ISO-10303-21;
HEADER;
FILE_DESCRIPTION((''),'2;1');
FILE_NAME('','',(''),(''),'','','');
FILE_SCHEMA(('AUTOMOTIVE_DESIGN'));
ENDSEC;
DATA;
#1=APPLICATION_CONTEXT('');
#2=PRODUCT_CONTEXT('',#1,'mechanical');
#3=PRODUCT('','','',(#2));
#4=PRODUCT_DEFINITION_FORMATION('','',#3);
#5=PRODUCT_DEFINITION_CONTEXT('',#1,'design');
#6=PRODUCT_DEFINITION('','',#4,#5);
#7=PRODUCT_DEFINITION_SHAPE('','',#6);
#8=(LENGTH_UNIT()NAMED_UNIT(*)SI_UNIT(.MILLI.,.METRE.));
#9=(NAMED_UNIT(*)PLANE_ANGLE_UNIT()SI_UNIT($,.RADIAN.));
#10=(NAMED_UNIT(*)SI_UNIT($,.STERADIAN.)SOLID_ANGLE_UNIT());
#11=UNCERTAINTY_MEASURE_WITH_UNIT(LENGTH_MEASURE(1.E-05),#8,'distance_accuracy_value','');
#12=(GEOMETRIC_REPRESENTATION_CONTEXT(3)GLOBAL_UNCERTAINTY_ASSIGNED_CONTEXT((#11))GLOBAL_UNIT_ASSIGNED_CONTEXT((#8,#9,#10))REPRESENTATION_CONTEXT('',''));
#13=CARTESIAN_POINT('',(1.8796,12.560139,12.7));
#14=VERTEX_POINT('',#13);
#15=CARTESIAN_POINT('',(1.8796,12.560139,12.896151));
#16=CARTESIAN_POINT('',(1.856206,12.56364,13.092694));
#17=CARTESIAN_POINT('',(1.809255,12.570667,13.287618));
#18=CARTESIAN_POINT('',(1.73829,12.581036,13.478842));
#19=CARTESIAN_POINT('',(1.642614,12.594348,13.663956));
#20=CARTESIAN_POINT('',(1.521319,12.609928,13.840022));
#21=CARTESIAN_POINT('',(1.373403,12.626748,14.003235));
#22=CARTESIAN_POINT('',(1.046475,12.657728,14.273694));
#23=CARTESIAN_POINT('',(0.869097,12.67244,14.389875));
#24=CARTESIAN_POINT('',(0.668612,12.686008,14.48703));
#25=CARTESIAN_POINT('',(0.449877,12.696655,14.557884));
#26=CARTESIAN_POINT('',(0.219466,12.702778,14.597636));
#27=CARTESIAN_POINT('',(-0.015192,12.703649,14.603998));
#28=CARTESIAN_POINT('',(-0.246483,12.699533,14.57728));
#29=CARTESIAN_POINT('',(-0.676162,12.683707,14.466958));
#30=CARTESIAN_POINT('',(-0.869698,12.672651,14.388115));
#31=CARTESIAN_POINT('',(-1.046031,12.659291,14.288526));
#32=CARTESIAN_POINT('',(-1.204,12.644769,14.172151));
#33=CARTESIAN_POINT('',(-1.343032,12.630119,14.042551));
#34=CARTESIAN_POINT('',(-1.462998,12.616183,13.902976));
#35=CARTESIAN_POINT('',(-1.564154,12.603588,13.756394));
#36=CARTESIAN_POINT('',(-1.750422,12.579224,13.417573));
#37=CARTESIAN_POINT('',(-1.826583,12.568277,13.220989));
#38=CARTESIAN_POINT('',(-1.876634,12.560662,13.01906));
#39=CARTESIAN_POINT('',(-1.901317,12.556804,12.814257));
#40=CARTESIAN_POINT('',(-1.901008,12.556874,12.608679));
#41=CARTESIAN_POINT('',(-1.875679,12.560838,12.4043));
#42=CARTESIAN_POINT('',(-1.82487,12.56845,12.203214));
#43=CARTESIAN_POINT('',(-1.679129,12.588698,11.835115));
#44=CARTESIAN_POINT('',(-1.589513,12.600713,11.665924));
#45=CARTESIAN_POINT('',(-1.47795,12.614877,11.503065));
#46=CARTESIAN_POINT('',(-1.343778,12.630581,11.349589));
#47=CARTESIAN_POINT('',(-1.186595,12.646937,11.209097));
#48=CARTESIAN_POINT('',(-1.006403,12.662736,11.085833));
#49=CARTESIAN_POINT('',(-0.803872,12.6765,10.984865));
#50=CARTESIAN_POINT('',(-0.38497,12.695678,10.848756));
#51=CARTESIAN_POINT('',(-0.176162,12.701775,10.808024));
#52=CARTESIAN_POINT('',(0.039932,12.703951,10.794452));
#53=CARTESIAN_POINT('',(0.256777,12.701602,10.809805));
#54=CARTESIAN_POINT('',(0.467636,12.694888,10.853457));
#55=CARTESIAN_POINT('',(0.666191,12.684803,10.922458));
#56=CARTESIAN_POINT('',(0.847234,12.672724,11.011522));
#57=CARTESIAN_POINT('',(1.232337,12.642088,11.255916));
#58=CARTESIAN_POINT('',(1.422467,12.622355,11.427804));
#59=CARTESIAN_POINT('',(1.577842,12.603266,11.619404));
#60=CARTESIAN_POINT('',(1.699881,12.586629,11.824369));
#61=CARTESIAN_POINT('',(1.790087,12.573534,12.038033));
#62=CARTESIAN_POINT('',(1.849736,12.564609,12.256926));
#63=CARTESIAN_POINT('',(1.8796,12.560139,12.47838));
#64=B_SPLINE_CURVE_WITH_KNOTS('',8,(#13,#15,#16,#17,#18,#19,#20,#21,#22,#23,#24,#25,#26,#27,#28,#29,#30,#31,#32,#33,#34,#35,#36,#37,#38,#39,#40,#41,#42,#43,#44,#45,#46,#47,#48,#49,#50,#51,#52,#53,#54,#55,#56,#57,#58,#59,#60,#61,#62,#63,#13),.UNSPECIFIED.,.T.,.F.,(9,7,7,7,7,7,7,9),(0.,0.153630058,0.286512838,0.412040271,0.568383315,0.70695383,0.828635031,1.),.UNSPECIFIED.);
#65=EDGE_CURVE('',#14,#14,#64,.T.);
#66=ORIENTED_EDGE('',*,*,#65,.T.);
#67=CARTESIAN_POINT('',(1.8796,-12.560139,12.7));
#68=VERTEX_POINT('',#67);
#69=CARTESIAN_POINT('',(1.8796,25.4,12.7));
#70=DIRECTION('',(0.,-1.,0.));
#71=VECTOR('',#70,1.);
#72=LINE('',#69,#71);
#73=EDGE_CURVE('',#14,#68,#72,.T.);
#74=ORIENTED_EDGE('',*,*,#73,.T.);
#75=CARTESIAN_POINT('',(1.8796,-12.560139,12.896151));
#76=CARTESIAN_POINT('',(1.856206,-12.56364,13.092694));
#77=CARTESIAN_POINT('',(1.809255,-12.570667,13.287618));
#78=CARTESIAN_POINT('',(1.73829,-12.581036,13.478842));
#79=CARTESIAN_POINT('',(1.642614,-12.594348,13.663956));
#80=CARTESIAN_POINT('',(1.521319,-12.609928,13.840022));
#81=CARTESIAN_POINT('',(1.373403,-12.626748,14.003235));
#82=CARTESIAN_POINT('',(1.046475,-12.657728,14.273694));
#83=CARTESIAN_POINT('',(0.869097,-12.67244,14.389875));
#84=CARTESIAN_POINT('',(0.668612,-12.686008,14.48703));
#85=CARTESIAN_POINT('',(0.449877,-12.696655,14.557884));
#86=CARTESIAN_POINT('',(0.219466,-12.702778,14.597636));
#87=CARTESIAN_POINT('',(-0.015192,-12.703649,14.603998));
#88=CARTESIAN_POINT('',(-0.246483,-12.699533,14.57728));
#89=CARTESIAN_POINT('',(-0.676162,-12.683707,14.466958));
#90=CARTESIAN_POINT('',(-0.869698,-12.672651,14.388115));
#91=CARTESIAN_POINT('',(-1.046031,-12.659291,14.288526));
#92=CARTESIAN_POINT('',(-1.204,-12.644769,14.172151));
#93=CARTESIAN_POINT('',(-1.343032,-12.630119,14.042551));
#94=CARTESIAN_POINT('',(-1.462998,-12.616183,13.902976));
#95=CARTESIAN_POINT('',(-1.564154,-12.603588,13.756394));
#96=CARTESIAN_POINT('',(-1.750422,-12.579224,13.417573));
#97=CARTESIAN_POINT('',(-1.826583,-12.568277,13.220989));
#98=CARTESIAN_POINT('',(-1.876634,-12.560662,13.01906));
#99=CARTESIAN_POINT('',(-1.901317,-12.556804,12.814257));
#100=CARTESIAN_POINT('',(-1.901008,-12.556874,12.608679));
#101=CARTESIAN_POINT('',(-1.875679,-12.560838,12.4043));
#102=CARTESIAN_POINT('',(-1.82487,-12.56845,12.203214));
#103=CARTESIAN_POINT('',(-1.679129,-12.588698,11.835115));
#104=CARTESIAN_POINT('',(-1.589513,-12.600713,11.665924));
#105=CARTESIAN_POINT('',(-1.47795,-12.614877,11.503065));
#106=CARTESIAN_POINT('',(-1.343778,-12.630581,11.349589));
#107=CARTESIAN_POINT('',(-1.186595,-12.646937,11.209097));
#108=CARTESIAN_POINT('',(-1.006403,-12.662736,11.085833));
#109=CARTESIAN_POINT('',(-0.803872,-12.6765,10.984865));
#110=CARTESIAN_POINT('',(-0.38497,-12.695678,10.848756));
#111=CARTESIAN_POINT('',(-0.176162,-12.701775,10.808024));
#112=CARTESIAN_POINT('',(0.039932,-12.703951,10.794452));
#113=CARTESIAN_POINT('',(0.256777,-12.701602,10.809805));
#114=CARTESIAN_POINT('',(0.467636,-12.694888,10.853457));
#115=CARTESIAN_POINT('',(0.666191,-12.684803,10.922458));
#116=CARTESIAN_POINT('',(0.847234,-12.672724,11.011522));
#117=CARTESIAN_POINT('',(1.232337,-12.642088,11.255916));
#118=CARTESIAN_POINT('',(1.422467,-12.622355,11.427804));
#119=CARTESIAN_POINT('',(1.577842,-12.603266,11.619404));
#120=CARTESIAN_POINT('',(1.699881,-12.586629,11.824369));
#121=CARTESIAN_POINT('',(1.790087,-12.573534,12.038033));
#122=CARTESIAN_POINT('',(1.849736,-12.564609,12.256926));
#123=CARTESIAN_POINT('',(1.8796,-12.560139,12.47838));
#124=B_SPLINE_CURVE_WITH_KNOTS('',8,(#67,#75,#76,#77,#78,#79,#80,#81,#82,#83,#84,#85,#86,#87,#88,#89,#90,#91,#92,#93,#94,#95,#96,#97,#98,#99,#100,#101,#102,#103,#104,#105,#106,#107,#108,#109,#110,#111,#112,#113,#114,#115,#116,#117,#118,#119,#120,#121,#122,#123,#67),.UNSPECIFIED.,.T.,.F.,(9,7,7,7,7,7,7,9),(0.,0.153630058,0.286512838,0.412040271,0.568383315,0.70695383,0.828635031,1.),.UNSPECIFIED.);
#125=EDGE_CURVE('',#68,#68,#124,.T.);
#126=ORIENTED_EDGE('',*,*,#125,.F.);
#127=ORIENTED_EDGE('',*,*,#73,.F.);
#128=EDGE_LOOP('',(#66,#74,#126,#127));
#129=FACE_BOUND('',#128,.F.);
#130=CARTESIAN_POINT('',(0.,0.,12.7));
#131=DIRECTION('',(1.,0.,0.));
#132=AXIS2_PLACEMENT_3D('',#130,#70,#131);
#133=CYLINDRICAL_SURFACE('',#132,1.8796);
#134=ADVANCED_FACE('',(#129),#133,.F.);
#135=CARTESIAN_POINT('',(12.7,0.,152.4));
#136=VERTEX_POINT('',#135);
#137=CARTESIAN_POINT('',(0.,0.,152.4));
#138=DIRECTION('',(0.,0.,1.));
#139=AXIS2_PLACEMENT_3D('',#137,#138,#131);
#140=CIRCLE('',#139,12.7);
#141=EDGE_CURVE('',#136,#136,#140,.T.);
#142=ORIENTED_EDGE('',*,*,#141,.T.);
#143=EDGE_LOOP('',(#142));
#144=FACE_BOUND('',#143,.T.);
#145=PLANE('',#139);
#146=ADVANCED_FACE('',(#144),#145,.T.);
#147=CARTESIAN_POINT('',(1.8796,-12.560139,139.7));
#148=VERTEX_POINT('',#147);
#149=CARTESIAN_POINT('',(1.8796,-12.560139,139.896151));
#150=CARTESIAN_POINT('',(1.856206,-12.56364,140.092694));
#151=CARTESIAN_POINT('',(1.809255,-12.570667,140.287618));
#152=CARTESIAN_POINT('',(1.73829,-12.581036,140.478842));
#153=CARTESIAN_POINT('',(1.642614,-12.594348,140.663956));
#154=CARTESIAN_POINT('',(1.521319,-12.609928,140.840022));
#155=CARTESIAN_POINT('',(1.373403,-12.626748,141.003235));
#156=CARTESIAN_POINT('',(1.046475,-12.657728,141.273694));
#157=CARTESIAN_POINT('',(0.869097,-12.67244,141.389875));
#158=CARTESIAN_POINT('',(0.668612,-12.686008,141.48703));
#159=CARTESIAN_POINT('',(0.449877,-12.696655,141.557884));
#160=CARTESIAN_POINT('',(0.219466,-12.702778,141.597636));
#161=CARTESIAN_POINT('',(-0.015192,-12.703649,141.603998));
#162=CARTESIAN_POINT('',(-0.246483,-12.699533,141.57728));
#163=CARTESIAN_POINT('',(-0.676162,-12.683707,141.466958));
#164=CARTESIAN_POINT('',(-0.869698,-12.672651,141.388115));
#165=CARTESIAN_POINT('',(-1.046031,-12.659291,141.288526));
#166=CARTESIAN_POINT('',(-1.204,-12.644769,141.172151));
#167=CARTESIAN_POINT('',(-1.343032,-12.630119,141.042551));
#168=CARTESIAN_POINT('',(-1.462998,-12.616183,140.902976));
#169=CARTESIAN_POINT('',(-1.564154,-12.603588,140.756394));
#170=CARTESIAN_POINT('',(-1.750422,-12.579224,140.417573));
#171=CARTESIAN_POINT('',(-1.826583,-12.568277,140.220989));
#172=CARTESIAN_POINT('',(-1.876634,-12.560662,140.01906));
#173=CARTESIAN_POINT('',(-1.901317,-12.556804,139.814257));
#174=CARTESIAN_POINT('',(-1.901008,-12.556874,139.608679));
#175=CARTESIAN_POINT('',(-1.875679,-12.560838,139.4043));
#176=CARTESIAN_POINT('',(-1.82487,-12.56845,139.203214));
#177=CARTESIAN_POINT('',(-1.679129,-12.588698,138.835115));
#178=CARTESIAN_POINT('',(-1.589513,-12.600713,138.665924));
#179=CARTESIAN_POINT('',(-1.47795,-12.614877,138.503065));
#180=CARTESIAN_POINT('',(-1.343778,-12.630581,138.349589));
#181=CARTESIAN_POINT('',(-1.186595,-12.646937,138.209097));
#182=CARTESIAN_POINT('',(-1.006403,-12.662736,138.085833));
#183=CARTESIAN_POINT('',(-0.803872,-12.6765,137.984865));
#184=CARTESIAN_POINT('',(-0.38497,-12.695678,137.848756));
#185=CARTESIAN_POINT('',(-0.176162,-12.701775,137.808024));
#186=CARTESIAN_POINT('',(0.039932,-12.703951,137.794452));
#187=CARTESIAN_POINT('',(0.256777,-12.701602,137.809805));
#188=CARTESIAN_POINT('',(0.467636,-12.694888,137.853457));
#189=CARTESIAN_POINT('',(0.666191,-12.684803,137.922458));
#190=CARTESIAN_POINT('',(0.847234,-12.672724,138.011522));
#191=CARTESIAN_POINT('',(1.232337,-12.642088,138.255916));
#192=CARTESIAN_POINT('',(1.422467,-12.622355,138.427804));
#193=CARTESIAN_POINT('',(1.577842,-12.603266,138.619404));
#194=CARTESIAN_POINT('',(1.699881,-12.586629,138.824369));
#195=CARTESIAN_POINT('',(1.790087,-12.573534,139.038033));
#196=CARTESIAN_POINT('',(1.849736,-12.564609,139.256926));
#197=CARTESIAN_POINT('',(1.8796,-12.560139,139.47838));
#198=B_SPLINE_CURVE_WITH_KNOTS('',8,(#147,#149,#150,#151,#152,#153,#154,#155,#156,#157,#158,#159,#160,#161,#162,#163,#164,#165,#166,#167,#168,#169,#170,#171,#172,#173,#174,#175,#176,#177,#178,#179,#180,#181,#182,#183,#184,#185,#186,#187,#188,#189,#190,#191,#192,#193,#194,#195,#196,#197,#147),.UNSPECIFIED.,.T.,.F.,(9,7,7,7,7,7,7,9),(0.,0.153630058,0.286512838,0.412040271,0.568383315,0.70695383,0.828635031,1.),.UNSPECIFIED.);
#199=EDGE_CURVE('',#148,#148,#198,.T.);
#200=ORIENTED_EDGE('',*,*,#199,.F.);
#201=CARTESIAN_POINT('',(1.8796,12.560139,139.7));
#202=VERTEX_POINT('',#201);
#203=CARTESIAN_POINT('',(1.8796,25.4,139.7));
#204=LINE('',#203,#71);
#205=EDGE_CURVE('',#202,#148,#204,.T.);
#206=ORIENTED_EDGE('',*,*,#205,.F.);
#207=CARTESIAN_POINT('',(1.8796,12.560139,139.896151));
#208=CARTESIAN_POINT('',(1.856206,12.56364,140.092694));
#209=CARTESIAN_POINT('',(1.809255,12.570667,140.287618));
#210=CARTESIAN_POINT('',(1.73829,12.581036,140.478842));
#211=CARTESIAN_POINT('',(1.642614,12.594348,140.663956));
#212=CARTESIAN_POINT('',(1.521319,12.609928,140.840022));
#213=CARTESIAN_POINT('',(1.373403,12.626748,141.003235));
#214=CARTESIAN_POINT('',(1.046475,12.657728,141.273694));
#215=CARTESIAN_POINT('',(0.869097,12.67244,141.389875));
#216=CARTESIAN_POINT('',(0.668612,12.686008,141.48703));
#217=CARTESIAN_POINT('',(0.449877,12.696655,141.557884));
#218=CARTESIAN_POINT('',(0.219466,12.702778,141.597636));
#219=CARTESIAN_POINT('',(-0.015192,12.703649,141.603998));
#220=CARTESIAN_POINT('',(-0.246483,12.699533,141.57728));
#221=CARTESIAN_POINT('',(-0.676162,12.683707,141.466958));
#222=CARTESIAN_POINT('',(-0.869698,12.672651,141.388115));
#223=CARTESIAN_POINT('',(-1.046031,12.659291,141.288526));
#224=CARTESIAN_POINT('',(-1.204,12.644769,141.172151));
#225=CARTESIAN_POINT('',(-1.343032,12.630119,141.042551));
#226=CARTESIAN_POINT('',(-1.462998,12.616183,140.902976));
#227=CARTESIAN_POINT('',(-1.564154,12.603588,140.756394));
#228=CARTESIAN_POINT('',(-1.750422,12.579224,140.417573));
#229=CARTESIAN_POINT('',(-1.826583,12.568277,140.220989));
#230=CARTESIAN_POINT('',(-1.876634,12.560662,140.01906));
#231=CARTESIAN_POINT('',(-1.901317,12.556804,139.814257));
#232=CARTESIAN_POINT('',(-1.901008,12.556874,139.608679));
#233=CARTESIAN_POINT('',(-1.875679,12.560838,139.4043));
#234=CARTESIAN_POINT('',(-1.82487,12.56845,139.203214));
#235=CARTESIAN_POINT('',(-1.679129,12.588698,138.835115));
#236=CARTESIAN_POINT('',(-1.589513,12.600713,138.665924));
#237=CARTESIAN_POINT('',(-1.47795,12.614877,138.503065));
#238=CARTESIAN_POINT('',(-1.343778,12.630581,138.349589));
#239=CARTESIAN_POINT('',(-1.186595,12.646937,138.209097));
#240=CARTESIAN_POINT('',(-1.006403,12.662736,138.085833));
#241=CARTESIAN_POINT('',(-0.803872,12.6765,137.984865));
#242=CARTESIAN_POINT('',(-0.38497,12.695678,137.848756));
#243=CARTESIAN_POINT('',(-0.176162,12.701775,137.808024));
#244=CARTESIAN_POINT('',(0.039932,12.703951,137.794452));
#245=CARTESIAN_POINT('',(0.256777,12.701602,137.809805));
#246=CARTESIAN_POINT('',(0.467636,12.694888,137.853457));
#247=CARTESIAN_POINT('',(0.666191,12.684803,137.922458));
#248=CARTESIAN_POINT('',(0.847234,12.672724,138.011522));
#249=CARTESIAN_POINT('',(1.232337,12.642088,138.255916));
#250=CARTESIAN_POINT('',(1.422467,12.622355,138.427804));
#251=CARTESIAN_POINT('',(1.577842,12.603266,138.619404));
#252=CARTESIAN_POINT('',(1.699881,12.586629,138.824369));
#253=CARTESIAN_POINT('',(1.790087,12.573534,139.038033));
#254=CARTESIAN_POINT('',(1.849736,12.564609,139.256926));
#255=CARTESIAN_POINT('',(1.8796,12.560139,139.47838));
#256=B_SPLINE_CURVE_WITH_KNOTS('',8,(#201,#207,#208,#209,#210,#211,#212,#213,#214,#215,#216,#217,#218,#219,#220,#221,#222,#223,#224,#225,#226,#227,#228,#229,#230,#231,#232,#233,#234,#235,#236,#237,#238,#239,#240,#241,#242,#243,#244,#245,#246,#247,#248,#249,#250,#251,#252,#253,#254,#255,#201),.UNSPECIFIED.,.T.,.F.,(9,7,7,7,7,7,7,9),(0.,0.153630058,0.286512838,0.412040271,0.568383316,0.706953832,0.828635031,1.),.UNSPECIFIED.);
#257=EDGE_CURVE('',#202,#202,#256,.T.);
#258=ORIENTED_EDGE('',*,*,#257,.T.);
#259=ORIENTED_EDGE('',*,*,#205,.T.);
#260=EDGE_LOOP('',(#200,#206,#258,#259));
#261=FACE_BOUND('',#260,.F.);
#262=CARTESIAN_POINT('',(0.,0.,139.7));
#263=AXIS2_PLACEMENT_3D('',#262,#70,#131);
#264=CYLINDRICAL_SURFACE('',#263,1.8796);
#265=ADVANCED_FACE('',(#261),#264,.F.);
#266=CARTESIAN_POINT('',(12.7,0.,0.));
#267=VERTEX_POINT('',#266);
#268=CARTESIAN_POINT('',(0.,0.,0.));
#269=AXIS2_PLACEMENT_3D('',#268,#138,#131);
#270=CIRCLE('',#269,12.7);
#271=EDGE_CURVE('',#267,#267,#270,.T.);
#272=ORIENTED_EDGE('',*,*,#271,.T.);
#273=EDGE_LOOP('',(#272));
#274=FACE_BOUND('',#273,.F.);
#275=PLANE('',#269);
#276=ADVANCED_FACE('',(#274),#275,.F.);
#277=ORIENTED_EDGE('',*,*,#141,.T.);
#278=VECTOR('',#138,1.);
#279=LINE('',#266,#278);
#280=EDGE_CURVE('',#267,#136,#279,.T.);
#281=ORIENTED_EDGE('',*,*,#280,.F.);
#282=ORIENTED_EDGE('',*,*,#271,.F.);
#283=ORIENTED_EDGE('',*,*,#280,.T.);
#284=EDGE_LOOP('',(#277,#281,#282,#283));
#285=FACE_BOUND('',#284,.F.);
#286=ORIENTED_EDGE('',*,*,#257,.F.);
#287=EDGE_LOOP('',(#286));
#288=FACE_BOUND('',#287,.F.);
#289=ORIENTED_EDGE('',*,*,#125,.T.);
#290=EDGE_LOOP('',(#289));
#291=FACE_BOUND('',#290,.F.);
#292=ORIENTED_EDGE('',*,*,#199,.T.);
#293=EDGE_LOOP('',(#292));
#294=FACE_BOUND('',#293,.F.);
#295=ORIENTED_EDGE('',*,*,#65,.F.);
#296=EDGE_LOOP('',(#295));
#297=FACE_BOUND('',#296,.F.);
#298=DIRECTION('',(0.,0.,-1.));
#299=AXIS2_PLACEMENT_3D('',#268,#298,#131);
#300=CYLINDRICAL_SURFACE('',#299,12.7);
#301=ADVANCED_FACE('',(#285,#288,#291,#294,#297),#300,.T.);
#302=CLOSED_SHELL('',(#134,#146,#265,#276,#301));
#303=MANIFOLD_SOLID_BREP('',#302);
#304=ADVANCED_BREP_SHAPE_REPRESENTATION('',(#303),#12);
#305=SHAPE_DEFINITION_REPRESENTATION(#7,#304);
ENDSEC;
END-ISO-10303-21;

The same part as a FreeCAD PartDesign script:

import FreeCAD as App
import Part
import Sketcher
Q = App.Units.Quantity

doc = App.newDocument("Part")
body = doc.addObject("PartDesign::Body", "Body")

sketch1 = body.newObject("Sketcher::SketchObject", "Sketch")
sketch1.AttachmentSupport = (doc.getObject("XY_Plane"), [""])
sketch1.MapMode = "FlatFace"
sketch1.addGeometry(Part.Circle(App.Vector(0, 0, 0), App.Vector(0, 0, 1), 13), False)
sketch1.addConstraint(Sketcher.Constraint("Coincident", 0, 3, -1, 1))
sketch1.addConstraint(Sketcher.Constraint("Diameter", 0, Q("1 in")))
pad1 = body.newObject("PartDesign::Pad", "Pad")
pad1.Profile = sketch1
pad1.Length = Q("6 in")

sketch2 = body.newObject("Sketcher::SketchObject", "Sketch001")
sketch2.AttachmentSupport = (doc.getObject("XZ_Plane"), [""])
sketch2.MapMode = "FlatFace"
sketch2.addGeometry(Part.Circle(App.Vector(0, 12.7, 0), App.Vector(0, 0, 1), 1.9), False)
sketch2.addConstraint(Sketcher.Constraint("PointOnObject", 0, 3, -2))
sketch2.addConstraint(Sketcher.Constraint("Diameter", 0, Q("0.148 in")))
sketch2.addConstraint(Sketcher.Constraint("DistanceY", -1, 1, 0, 3, Q("0.5 in")))
pocket1 = body.newObject("PartDesign::Pocket", "Pocket")
pocket1.Profile = sketch2
pocket1.Length = Q("2 in")
pocket1.Midplane = True

sketch3 = body.newObject("Sketcher::SketchObject", "Sketch002")
sketch3.AttachmentSupport = (doc.getObject("XZ_Plane"), [""])
sketch3.MapMode = "FlatFace"
sketch3.addGeometry(Part.Circle(App.Vector(0, 139.7, 0), App.Vector(0, 0, 1), 1.9), False)
sketch3.addConstraint(Sketcher.Constraint("PointOnObject", 0, 3, -2))
sketch3.addConstraint(Sketcher.Constraint("Diameter", 0, Q("0.148 in")))
sketch3.addConstraint(Sketcher.Constraint("DistanceY", -1, 1, 0, 3, Q("5.5 in")))
pocket2 = body.newObject("PartDesign::Pocket", "Pocket001")
pocket2.Profile = sketch3
pocket2.Length = Q("2 in")
pocket2.Midplane = True

doc.recompute()
